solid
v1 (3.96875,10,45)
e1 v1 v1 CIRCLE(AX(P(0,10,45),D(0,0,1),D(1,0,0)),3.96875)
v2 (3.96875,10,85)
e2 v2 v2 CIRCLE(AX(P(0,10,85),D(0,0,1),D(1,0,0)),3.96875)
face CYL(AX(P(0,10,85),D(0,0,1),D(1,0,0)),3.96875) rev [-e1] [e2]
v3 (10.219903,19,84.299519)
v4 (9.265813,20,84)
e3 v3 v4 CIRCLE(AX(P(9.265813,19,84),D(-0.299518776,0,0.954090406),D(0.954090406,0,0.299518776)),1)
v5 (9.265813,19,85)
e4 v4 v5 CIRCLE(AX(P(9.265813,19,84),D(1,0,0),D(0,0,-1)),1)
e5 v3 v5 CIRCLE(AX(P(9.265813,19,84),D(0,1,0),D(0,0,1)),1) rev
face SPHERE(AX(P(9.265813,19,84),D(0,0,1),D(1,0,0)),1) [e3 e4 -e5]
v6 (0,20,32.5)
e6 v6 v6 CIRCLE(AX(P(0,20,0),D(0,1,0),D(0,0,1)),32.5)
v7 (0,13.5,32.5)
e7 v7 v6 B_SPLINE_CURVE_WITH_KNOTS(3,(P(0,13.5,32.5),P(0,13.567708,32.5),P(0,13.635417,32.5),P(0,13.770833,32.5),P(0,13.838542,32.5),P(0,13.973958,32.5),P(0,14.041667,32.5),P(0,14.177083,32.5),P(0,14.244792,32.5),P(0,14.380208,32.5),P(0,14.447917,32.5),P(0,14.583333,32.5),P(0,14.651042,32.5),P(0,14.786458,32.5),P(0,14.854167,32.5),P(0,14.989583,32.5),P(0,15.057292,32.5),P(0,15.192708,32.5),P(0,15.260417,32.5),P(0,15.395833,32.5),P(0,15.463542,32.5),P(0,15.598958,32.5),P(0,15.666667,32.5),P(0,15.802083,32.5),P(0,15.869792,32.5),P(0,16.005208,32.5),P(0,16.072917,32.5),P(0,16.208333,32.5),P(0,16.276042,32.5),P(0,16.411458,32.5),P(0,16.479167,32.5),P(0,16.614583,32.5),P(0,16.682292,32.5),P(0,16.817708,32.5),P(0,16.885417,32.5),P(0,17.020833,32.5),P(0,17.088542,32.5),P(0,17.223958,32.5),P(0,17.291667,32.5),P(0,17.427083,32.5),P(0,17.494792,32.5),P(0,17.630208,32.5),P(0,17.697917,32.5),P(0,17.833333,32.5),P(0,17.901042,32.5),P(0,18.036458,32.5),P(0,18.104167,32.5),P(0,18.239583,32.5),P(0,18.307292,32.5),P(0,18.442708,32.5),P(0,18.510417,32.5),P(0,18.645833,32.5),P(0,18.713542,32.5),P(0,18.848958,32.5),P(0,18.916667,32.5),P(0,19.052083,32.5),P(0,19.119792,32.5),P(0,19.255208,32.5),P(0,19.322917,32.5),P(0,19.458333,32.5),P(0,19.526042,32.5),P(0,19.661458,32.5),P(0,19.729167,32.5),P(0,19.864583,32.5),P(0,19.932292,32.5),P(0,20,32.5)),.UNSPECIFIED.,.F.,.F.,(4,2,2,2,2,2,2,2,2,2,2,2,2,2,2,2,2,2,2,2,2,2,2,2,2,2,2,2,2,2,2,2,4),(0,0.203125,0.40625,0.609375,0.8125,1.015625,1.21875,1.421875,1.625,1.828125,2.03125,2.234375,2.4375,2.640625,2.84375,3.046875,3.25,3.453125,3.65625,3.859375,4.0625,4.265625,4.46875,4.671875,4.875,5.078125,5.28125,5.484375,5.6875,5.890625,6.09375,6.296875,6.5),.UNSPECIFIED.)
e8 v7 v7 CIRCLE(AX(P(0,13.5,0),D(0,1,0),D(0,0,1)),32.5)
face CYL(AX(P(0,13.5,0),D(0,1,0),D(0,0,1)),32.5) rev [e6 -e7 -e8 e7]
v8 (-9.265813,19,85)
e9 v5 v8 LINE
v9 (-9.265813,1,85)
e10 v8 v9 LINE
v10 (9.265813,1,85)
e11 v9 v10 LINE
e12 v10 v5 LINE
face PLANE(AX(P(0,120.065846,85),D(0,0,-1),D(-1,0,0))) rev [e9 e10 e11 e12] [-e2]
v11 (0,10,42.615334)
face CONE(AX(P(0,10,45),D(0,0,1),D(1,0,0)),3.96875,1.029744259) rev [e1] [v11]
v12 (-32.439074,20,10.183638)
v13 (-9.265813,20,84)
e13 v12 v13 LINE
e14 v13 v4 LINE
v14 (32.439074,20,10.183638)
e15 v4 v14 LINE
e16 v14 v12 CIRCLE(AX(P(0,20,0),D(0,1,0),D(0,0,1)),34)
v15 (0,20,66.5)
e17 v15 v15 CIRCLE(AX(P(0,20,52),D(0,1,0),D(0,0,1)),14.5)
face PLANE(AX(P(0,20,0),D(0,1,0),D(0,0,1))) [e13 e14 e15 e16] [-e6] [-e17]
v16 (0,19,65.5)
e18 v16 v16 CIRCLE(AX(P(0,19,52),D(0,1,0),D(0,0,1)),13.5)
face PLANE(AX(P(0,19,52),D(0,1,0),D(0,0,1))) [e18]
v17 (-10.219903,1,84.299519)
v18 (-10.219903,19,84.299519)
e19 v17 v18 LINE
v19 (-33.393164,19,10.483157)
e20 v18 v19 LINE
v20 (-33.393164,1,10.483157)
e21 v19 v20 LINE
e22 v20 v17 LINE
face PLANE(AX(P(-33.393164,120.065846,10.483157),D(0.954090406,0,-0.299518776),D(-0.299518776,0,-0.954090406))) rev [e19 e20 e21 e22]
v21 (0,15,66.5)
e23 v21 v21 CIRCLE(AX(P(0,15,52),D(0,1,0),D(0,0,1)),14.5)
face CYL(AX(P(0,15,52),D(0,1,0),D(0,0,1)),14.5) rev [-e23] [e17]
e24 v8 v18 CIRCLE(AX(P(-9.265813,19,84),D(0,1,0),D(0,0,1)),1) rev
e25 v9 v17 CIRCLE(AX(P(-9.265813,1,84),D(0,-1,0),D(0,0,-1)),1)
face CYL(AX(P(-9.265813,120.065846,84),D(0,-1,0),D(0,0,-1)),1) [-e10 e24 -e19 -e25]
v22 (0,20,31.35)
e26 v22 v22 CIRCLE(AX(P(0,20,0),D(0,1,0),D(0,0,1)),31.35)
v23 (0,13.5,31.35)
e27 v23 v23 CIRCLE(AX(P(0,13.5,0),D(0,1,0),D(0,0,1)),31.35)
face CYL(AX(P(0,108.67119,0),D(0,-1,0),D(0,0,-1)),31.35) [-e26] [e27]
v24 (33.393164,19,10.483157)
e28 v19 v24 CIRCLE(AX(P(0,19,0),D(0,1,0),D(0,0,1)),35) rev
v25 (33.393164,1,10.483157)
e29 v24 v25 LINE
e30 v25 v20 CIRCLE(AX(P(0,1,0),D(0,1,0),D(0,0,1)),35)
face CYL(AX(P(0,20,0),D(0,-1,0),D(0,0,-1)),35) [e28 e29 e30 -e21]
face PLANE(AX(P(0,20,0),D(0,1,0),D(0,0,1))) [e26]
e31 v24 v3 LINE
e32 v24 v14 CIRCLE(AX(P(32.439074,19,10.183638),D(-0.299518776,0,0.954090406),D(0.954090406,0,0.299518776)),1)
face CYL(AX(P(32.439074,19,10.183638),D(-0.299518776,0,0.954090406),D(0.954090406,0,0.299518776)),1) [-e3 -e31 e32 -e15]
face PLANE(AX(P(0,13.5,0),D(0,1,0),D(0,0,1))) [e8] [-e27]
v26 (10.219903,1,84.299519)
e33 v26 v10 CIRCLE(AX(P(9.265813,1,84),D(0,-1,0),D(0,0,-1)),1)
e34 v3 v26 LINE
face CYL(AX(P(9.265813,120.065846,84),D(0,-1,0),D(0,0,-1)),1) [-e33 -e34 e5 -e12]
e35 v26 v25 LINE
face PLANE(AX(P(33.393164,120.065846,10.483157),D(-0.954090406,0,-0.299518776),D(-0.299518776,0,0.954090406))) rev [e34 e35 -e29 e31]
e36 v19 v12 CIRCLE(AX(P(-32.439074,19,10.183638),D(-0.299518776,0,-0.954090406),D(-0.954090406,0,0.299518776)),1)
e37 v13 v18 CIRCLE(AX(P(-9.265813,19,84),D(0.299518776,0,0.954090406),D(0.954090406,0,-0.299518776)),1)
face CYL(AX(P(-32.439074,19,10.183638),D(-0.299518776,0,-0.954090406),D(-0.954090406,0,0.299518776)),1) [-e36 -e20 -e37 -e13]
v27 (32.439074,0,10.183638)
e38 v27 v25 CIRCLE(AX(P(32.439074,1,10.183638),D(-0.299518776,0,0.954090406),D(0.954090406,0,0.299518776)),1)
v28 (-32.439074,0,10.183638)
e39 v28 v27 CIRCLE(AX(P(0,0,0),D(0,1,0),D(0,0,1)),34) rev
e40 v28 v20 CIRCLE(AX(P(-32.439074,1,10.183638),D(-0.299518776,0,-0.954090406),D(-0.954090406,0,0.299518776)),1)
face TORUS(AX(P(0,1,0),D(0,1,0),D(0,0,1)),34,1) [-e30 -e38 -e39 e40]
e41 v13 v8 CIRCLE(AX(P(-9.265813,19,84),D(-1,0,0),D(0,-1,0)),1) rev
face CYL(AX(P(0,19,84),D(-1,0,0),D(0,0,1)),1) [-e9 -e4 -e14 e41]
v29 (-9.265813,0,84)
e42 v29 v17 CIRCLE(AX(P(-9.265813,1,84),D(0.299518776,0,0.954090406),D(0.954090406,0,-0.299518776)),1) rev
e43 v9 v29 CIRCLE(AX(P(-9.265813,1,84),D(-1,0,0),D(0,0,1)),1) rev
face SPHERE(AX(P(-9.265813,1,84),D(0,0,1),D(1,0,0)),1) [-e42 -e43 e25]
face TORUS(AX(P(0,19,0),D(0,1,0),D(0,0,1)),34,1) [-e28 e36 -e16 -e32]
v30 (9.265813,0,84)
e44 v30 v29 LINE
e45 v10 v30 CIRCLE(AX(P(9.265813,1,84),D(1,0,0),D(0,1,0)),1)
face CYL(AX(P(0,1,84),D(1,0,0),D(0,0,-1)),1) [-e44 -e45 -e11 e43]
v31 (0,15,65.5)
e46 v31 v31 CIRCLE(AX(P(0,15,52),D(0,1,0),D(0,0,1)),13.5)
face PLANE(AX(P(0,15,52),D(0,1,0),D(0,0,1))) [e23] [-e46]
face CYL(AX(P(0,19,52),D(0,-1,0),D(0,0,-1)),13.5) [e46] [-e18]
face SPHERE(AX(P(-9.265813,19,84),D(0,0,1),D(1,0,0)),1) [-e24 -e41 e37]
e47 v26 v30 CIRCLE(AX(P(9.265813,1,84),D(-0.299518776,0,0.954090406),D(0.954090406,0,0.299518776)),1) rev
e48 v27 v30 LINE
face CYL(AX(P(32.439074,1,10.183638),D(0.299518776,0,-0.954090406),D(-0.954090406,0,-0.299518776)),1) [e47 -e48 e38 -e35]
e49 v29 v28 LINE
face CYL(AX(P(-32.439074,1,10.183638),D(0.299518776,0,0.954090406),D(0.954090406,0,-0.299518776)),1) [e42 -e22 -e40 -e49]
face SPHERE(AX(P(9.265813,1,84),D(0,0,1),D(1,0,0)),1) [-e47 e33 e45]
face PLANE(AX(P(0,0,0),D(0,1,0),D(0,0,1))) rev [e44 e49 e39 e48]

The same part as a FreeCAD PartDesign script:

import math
import FreeCAD as App
import Part
import Sketcher

V = App.Vector
Q = App.Units.Quantity


def edges_at(feature, points):
    """Names of the edges that pass closest to the given points."""
    edges = feature.Shape.Edges
    near = lambda p: min(range(len(edges)), key=lambda i: edges[i].distToShape(Part.Vertex(*p))[0])
    return sorted({f"Edge{near(p) + 1}" for p in points})

doc = App.newDocument("Part")
params = doc.addObject("Spreadsheet::Sheet", "Params")
for row, (alias, value) in enumerate([
    ("sketch1_diameter", "70 mm"),
    ("pad1_length", "20 mm"),
    ("sketch2_diameter", "65 mm"),
    ("pocket1_length", "6.5 mm"),
    ("sketch3_diameter", "62.7 mm"),
    ("pad2_length", "6.5 mm"),
    ("sketch4_radius", "35 mm"),
    ("sketch4_width", "20 mm"),
    ("pad3_length", "20 mm"),
    ("sketch5_diameter", "29 mm"),
    ("pocket2_length", "5 mm"),
    ("sketch6_diameter", "27 mm"),
    ("pad4_length", "4 mm"),
    ("hole_diameter", "7.9375 mm"),
    ("hole_depth", "40 mm"),
    ("fillet_radius", "1 mm"),
], start=1):
    params.set(f"A{row}", alias)
    params.set(f"B{row}", "=" + value)
    params.setAlias(f"B{row}", alias)

body = doc.addObject("PartDesign::Body", "Body")

# Sketch on XZ plane
sketch1 = body.newObject("Sketcher::SketchObject", "Sketch")
sketch1.AttachmentSupport = (doc.getObject("XZ_Plane"), [""])
sketch1.MapMode = "FlatFace"
sketch1.addGeometry(Part.Circle(V(0, 0, 0), V(0, 0, 1), 35), False)
sketch1.addConstraint([
    Sketcher.Constraint("Coincident", 0, 3, -1, 1),
    Sketcher.Constraint("Diameter", 0, Q("70 mm")),
])
sketch1.setExpression("Constraints[1]", "Params.sketch1_diameter")
pad1 = body.newObject("PartDesign::Pad", "Pad")
pad1.Profile = sketch1
pad1.setExpression("Length", "Params.pad1_length")
pad1.Reversed = True

# Sketch on XZ plane
sketch2 = body.newObject("Sketcher::SketchObject", "Sketch001")
sketch2.AttachmentSupport = (doc.getObject("XZ_Plane"), [""])
sketch2.MapMode = "FlatFace"
sketch2.AttachmentOffset = App.Placement(V(0, 0, -20), App.Rotation())
sketch2.addGeometry(Part.Circle(V(0, 0, 0), V(0, 0, 1), 32), False)
sketch2.addConstraint([
    Sketcher.Constraint("Coincident", 0, 3, -1, 1),
    Sketcher.Constraint("Diameter", 0, Q("65 mm")),
])
sketch2.setExpression("Constraints[1]", "Params.sketch2_diameter")
pocket1 = body.newObject("PartDesign::Pocket", "Pocket")
pocket1.Profile = sketch2
pocket1.setExpression("Length", "Params.pocket1_length")
pocket1.Reversed = True

# Sketch on XZ plane
sketch3 = body.newObject("Sketcher::SketchObject", "Sketch002")
sketch3.AttachmentSupport = (doc.getObject("XZ_Plane"), [""])
sketch3.MapMode = "FlatFace"
sketch3.AttachmentOffset = App.Placement(V(0, 0, -13.5), App.Rotation())
sketch3.addGeometry(Part.Circle(V(0, 0, 0), V(0, 0, 1), 31), False)
sketch3.addConstraint([
    Sketcher.Constraint("Coincident", 0, 3, -1, 1),
    Sketcher.Constraint("Diameter", 0, Q("62.7 mm")),
])
sketch3.setExpression("Constraints[1]", "Params.sketch3_diameter")
pad2 = body.newObject("PartDesign::Pad", "Pad001")
pad2.Profile = sketch3
pad2.setExpression("Length", "Params.pad2_length")
pad2.Reversed = True

# Sketch on XZ plane
sketch4 = body.newObject("Sketcher::SketchObject", "Sketch003")
sketch4.AttachmentSupport = (doc.getObject("XZ_Plane"), [""])
sketch4.MapMode = "FlatFace"
sketch4.addGeometry([
    Part.ArcOfCircle(Part.Circle(V(0, 0, 0), V(0, 0, 1), 35), math.radians(17), math.radians(163)),
    Part.LineSegment(V(-33, 10, 0), V(-10, 85, 0)),
    Part.LineSegment(V(-10, 85, 0), V(10, 85, 0)),
    Part.LineSegment(V(10, 85, 0), V(33, 10, 0)),
], False)
sketch4.addConstraint([
    Sketcher.Constraint("Tangent", 0, 2, 1, 1),
    Sketcher.Constraint("Coincident", 1, 2, 2, 1),
    Sketcher.Constraint("Coincident", 2, 2, 3, 1),
    Sketcher.Constraint("Tangent", 3, 2, 0, 1),
    Sketcher.Constraint("Horizontal", 2),
    Sketcher.Constraint("Coincident", 0, 3, -1, 1),
    Sketcher.Constraint("Horizontal", 0, 2, 3, 2),
    Sketcher.Constraint("Radius", 0, Q("35 mm")),
    Sketcher.Constraint("DistanceX", 2, 1, 2, 2, Q("20 mm")),
    Sketcher.Constraint("DistanceY", -1, 1, 1, 2, Q("85 mm")),
])
sketch4.setExpression("Constraints[7]", "Params.sketch4_radius")
sketch4.setExpression("Constraints[8]", "Params.sketch4_width")
pad3 = body.newObject("PartDesign::Pad", "Pad002")
pad3.Profile = sketch4
pad3.setExpression("Length", "Params.pad3_length")
pad3.Reversed = True

# Sketch on XZ plane
sketch5 = body.newObject("Sketcher::SketchObject", "Sketch004")
sketch5.AttachmentSupport = (doc.getObject("XZ_Plane"), [""])
sketch5.MapMode = "FlatFace"
sketch5.AttachmentOffset = App.Placement(V(0, 0, -20), App.Rotation())
sketch5.addGeometry(Part.Circle(V(0, 52, 0), V(0, 0, 1), 14), False)
sketch5.addConstraint([
    Sketcher.Constraint("PointOnObject", 0, 3, -2),
    Sketcher.Constraint("Diameter", 0, Q("29 mm")),
    Sketcher.Constraint("DistanceY", -1, 1, 0, 3, Q("52 mm")),
])
sketch5.setExpression("Constraints[1]", "Params.sketch5_diameter")
pocket2 = body.newObject("PartDesign::Pocket", "Pocket001")
pocket2.Profile = sketch5
pocket2.setExpression("Length", "Params.pocket2_length")
pocket2.Reversed = True

# Sketch on XZ plane
sketch6 = body.newObject("Sketcher::SketchObject", "Sketch005")
sketch6.AttachmentSupport = (doc.getObject("XZ_Plane"), [""])
sketch6.MapMode = "FlatFace"
sketch6.AttachmentOffset = App.Placement(V(0, 0, -15), App.Rotation())
sketch6.addGeometry(Part.Circle(V(0, 52, 0), V(0, 0, 1), 14), False)
sketch6.addConstraint([
    Sketcher.Constraint("PointOnObject", 0, 3, -2),
    Sketcher.Constraint("Diameter", 0, Q("27 mm")),
    Sketcher.Constraint("DistanceY", -1, 1, 0, 3, Q("52 mm")),
])
sketch6.setExpression("Constraints[1]", "Params.sketch6_diameter")
pad4 = body.newObject("PartDesign::Pad", "Pad003")
pad4.Profile = sketch6
pad4.setExpression("Length", "Params.pad4_length")
pad4.Reversed = True

# Sketch on XY plane
sketch7 = body.newObject("Sketcher::SketchObject", "Sketch006")
sketch7.AttachmentSupport = (doc.getObject("XY_Plane"), [""])
sketch7.MapMode = "FlatFace"
sketch7.AttachmentOffset = App.Placement(V(0, 0, 85), App.Rotation())
sketch7.addGeometry(Part.Circle(V(0, 10, 0), V(0, 0, 1), 4), False)
sketch7.addConstraint([
    Sketcher.Constraint("PointOnObject", 0, 3, -2),
    Sketcher.Constraint("DistanceY", -1, 1, 0, 3, Q("10 mm")),
    Sketcher.Constraint("Diameter", 0, Q("7.9375 mm")),
])
doc.recompute()
hole = body.newObject("PartDesign::Hole", "Hole")
hole.Profile = sketch7
hole.ThreadType = "None"
hole.setExpression("Diameter", "Params.hole_diameter")
hole.DepthType = "Dimension"
hole.setExpression("Depth", "Params.hole_depth")
hole.DrillPoint = "Angled"
hole.DrillPointAngle = 118
doc.recompute()

fillet = body.newObject("PartDesign::Fillet", "Fillet")
fillet.Base = (hole, edges_at(hole, [
    (0, 0, -35),
    (-21.697, 0, 47.742),
    (-10, 10, 85),
    (0, 0, 85),
    (10, 10, 85),
    (21.697, 0, 47.742),
    (-21.697, 20, 47.742),
    (0, 20, 85),
    (21.697, 20, 47.742),
    (0, 20, -35),
]))
fillet.setExpression("Radius", "Params.fillet_radius")

doc.recompute()
